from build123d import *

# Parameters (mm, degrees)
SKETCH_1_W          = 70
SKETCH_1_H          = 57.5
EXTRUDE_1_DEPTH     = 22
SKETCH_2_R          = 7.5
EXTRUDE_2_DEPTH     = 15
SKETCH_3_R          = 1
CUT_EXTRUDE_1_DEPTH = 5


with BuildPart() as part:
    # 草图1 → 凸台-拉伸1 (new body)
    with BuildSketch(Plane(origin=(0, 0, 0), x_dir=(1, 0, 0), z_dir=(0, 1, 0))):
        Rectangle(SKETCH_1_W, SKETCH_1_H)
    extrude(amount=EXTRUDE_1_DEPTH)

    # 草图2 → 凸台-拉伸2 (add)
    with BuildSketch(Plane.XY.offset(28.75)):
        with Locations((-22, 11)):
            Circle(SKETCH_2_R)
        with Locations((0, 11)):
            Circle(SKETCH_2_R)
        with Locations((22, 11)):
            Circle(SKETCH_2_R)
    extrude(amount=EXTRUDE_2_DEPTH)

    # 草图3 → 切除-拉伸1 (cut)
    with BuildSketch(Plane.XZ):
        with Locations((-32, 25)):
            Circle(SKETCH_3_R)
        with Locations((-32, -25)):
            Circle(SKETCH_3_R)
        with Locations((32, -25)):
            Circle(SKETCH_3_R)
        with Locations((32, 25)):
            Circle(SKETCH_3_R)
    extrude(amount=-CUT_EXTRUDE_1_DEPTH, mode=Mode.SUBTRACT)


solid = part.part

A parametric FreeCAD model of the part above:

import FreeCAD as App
import Part
import Sketcher
from FreeCAD import Vector
Q = App.Units.Quantity

doc = App.newDocument("Part")
params = doc.addObject("Spreadsheet::Sheet", "Params")
for row, (alias, value) in enumerate([
    ("sketch1_width", "70 mm"),
    ("sketch1_height", "57.5 mm"),
    ("pad1_length", "22 mm"),
    ("sketch2_diameter", "15 mm"),
    ("pad2_length", "15 mm"),
    ("sketch3_diameter", "2 mm"),
    ("pocket1_length", "5 mm"),
], start=1):
    params.set(f"A{row}", alias)
    params.set(f"B{row}", "=" + value)
    params.setAlias(f"B{row}", alias)

body = doc.addObject("PartDesign::Body", "Body")

sketch1 = doc.addObject("Sketcher::SketchObject", "Sketch")
body.addObject(sketch1)
sketch1.AttachmentSupport = (doc.XZ_Plane, [""])
sketch1.MapMode = "FlatFace"
sketch1.addGeometry([
    Part.LineSegment(Vector(-35, -28.75, 0), Vector(-35, 28.75, 0)),
    Part.LineSegment(Vector(-35, 28.75, 0), Vector(35, 28.75, 0)),
    Part.LineSegment(Vector(35, 28.75, 0), Vector(35, -28.75, 0)),
    Part.LineSegment(Vector(35, -28.75, 0), Vector(-35, -28.75, 0)),
], False)
sketch1.addConstraint([
    Sketcher.Constraint("Coincident", 0, 2, 1, 1),
    Sketcher.Constraint("Coincident", 1, 2, 2, 1),
    Sketcher.Constraint("Coincident", 2, 2, 3, 1),
    Sketcher.Constraint("Coincident", 3, 2, 0, 1),
    Sketcher.Constraint("Vertical", 0),
    Sketcher.Constraint("Horizontal", 1),
    Sketcher.Constraint("Vertical", 2),
    Sketcher.Constraint("Horizontal", 3),
    Sketcher.Constraint("Symmetric", 0, 2, 2, 2, -1, 1),
    Sketcher.Constraint("DistanceX", 1, 1, 1, 2, Q("70 mm")),
    Sketcher.Constraint("DistanceY", 0, 1, 0, 2, Q("57.5 mm")),
])
sketch1.setExpression("Constraints[9]", "Params.sketch1_width")
sketch1.setExpression("Constraints[10]", "Params.sketch1_height")
pad1 = doc.addObject("PartDesign::Pad", "Pad")
body.addObject(pad1)
pad1.Profile = sketch1
pad1.setExpression("Length", "Params.pad1_length")
pad1.Reversed = True

sketch2 = doc.addObject("Sketcher::SketchObject", "Sketch001")
body.addObject(sketch2)
sketch2.AttachmentSupport = (doc.XY_Plane, [""])
sketch2.MapMode = "FlatFace"
sketch2.AttachmentOffset = App.Placement(Vector(0, 0, 28.75), App.Rotation())
sketch2.addGeometry([
    Part.Circle(Vector(-22, 11, 0), Vector(0, 0, 1), 7.5),
    Part.Circle(Vector(0, 11, 0), Vector(0, 0, 1), 7.5),
    Part.Circle(Vector(22, 11, 0), Vector(0, 0, 1), 7.5),
], False)
sketch2.addConstraint([
    Sketcher.Constraint("Equal", 0, 1),
    Sketcher.Constraint("Equal", 1, 2),
    Sketcher.Constraint("Symmetric", 0, 3, 2, 3, -2),
    Sketcher.Constraint("PointOnObject", 1, 3, -2),
    Sketcher.Constraint("Horizontal", 0, 3, 1, 3),
    Sketcher.Constraint("Diameter", 0, Q("15 mm")),
    Sketcher.Constraint("DistanceX", 0, 3, -1, 1, Q("22 mm")),
    Sketcher.Constraint("DistanceY", -1, 1, 0, 3, Q("11 mm")),
])
sketch2.setExpression("Constraints[5]", "Params.sketch2_diameter")
pad2 = doc.addObject("PartDesign::Pad", "Pad001")
body.addObject(pad2)
pad2.Profile = sketch2
pad2.setExpression("Length", "Params.pad2_length")

sketch3 = doc.addObject("Sketcher::SketchObject", "Sketch002")
body.addObject(sketch3)
sketch3.AttachmentSupport = (doc.XZ_Plane, [""])
sketch3.MapMode = "FlatFace"
sketch3.addGeometry([
    Part.Circle(Vector(-32, 25, 0), Vector(0, 0, 1), 1),
    Part.Circle(Vector(-32, -25, 0), Vector(0, 0, 1), 1),
    Part.Circle(Vector(32, -25, 0), Vector(0, 0, 1), 1),
    Part.Circle(Vector(32, 25, 0), Vector(0, 0, 1), 1),
], False)
sketch3.addConstraint([
    Sketcher.Constraint("Equal", 0, 1),
    Sketcher.Constraint("Equal", 1, 2),
    Sketcher.Constraint("Equal", 2, 3),
    Sketcher.Constraint("Symmetric", 0, 3, 2, 3, -1, 1),
    Sketcher.Constraint("Symmetric", 1, 3, 3, 3, -1, 1),
    Sketcher.Constraint("Symmetric", 1, 3, 2, 3, -2),
    Sketcher.Constraint("Diameter", 0, Q("2 mm")),
    Sketcher.Constraint("DistanceX", 0, 3, -1, 1, Q("32 mm")),
    Sketcher.Constraint("DistanceY", -1, 1, 0, 3, Q("25 mm")),
])
sketch3.setExpression("Constraints[6]", "Params.sketch3_diameter")
pocket1 = doc.addObject("PartDesign::Pocket", "Pocket")
body.addObject(pocket1)
pocket1.Profile = sketch3
pocket1.setExpression("Length", "Params.pocket1_length")

doc.recompute()
